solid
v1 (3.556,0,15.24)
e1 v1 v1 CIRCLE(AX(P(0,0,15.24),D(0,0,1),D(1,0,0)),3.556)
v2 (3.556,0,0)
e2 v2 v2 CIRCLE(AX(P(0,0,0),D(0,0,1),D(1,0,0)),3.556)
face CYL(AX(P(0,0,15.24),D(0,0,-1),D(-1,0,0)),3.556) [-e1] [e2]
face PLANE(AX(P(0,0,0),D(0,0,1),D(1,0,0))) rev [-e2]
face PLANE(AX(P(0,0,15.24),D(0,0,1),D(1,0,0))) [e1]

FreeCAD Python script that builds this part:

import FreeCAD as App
import Part
import Sketcher
from FreeCAD import Vector
Q = App.Units.Quantity

doc = App.newDocument("Part")
body = doc.addObject("PartDesign::Body", "Body")

# Sketch on XY plane
sketch1 = body.newObject("Sketcher::SketchObject", "Sketch")
sketch1.AttachmentSupport = (doc.getObject("XY_Plane"), [""])
sketch1.MapMode = "FlatFace"
sketch1.addGeometry(Part.Circle(Vector(0, 0, 0), Vector(0, 0, 1), 3.556), False)
sketch1.addConstraint([
    Sketcher.Constraint("Coincident", 0, 3, -1, 1),
    Sketcher.Constraint("Diameter", 0, Q("0.28 in")),
])
pad1 = body.newObject("PartDesign::Pad", "Pad")
pad1.Profile = sketch1
pad1.Length = Q("0.6 in")

doc.recompute()
